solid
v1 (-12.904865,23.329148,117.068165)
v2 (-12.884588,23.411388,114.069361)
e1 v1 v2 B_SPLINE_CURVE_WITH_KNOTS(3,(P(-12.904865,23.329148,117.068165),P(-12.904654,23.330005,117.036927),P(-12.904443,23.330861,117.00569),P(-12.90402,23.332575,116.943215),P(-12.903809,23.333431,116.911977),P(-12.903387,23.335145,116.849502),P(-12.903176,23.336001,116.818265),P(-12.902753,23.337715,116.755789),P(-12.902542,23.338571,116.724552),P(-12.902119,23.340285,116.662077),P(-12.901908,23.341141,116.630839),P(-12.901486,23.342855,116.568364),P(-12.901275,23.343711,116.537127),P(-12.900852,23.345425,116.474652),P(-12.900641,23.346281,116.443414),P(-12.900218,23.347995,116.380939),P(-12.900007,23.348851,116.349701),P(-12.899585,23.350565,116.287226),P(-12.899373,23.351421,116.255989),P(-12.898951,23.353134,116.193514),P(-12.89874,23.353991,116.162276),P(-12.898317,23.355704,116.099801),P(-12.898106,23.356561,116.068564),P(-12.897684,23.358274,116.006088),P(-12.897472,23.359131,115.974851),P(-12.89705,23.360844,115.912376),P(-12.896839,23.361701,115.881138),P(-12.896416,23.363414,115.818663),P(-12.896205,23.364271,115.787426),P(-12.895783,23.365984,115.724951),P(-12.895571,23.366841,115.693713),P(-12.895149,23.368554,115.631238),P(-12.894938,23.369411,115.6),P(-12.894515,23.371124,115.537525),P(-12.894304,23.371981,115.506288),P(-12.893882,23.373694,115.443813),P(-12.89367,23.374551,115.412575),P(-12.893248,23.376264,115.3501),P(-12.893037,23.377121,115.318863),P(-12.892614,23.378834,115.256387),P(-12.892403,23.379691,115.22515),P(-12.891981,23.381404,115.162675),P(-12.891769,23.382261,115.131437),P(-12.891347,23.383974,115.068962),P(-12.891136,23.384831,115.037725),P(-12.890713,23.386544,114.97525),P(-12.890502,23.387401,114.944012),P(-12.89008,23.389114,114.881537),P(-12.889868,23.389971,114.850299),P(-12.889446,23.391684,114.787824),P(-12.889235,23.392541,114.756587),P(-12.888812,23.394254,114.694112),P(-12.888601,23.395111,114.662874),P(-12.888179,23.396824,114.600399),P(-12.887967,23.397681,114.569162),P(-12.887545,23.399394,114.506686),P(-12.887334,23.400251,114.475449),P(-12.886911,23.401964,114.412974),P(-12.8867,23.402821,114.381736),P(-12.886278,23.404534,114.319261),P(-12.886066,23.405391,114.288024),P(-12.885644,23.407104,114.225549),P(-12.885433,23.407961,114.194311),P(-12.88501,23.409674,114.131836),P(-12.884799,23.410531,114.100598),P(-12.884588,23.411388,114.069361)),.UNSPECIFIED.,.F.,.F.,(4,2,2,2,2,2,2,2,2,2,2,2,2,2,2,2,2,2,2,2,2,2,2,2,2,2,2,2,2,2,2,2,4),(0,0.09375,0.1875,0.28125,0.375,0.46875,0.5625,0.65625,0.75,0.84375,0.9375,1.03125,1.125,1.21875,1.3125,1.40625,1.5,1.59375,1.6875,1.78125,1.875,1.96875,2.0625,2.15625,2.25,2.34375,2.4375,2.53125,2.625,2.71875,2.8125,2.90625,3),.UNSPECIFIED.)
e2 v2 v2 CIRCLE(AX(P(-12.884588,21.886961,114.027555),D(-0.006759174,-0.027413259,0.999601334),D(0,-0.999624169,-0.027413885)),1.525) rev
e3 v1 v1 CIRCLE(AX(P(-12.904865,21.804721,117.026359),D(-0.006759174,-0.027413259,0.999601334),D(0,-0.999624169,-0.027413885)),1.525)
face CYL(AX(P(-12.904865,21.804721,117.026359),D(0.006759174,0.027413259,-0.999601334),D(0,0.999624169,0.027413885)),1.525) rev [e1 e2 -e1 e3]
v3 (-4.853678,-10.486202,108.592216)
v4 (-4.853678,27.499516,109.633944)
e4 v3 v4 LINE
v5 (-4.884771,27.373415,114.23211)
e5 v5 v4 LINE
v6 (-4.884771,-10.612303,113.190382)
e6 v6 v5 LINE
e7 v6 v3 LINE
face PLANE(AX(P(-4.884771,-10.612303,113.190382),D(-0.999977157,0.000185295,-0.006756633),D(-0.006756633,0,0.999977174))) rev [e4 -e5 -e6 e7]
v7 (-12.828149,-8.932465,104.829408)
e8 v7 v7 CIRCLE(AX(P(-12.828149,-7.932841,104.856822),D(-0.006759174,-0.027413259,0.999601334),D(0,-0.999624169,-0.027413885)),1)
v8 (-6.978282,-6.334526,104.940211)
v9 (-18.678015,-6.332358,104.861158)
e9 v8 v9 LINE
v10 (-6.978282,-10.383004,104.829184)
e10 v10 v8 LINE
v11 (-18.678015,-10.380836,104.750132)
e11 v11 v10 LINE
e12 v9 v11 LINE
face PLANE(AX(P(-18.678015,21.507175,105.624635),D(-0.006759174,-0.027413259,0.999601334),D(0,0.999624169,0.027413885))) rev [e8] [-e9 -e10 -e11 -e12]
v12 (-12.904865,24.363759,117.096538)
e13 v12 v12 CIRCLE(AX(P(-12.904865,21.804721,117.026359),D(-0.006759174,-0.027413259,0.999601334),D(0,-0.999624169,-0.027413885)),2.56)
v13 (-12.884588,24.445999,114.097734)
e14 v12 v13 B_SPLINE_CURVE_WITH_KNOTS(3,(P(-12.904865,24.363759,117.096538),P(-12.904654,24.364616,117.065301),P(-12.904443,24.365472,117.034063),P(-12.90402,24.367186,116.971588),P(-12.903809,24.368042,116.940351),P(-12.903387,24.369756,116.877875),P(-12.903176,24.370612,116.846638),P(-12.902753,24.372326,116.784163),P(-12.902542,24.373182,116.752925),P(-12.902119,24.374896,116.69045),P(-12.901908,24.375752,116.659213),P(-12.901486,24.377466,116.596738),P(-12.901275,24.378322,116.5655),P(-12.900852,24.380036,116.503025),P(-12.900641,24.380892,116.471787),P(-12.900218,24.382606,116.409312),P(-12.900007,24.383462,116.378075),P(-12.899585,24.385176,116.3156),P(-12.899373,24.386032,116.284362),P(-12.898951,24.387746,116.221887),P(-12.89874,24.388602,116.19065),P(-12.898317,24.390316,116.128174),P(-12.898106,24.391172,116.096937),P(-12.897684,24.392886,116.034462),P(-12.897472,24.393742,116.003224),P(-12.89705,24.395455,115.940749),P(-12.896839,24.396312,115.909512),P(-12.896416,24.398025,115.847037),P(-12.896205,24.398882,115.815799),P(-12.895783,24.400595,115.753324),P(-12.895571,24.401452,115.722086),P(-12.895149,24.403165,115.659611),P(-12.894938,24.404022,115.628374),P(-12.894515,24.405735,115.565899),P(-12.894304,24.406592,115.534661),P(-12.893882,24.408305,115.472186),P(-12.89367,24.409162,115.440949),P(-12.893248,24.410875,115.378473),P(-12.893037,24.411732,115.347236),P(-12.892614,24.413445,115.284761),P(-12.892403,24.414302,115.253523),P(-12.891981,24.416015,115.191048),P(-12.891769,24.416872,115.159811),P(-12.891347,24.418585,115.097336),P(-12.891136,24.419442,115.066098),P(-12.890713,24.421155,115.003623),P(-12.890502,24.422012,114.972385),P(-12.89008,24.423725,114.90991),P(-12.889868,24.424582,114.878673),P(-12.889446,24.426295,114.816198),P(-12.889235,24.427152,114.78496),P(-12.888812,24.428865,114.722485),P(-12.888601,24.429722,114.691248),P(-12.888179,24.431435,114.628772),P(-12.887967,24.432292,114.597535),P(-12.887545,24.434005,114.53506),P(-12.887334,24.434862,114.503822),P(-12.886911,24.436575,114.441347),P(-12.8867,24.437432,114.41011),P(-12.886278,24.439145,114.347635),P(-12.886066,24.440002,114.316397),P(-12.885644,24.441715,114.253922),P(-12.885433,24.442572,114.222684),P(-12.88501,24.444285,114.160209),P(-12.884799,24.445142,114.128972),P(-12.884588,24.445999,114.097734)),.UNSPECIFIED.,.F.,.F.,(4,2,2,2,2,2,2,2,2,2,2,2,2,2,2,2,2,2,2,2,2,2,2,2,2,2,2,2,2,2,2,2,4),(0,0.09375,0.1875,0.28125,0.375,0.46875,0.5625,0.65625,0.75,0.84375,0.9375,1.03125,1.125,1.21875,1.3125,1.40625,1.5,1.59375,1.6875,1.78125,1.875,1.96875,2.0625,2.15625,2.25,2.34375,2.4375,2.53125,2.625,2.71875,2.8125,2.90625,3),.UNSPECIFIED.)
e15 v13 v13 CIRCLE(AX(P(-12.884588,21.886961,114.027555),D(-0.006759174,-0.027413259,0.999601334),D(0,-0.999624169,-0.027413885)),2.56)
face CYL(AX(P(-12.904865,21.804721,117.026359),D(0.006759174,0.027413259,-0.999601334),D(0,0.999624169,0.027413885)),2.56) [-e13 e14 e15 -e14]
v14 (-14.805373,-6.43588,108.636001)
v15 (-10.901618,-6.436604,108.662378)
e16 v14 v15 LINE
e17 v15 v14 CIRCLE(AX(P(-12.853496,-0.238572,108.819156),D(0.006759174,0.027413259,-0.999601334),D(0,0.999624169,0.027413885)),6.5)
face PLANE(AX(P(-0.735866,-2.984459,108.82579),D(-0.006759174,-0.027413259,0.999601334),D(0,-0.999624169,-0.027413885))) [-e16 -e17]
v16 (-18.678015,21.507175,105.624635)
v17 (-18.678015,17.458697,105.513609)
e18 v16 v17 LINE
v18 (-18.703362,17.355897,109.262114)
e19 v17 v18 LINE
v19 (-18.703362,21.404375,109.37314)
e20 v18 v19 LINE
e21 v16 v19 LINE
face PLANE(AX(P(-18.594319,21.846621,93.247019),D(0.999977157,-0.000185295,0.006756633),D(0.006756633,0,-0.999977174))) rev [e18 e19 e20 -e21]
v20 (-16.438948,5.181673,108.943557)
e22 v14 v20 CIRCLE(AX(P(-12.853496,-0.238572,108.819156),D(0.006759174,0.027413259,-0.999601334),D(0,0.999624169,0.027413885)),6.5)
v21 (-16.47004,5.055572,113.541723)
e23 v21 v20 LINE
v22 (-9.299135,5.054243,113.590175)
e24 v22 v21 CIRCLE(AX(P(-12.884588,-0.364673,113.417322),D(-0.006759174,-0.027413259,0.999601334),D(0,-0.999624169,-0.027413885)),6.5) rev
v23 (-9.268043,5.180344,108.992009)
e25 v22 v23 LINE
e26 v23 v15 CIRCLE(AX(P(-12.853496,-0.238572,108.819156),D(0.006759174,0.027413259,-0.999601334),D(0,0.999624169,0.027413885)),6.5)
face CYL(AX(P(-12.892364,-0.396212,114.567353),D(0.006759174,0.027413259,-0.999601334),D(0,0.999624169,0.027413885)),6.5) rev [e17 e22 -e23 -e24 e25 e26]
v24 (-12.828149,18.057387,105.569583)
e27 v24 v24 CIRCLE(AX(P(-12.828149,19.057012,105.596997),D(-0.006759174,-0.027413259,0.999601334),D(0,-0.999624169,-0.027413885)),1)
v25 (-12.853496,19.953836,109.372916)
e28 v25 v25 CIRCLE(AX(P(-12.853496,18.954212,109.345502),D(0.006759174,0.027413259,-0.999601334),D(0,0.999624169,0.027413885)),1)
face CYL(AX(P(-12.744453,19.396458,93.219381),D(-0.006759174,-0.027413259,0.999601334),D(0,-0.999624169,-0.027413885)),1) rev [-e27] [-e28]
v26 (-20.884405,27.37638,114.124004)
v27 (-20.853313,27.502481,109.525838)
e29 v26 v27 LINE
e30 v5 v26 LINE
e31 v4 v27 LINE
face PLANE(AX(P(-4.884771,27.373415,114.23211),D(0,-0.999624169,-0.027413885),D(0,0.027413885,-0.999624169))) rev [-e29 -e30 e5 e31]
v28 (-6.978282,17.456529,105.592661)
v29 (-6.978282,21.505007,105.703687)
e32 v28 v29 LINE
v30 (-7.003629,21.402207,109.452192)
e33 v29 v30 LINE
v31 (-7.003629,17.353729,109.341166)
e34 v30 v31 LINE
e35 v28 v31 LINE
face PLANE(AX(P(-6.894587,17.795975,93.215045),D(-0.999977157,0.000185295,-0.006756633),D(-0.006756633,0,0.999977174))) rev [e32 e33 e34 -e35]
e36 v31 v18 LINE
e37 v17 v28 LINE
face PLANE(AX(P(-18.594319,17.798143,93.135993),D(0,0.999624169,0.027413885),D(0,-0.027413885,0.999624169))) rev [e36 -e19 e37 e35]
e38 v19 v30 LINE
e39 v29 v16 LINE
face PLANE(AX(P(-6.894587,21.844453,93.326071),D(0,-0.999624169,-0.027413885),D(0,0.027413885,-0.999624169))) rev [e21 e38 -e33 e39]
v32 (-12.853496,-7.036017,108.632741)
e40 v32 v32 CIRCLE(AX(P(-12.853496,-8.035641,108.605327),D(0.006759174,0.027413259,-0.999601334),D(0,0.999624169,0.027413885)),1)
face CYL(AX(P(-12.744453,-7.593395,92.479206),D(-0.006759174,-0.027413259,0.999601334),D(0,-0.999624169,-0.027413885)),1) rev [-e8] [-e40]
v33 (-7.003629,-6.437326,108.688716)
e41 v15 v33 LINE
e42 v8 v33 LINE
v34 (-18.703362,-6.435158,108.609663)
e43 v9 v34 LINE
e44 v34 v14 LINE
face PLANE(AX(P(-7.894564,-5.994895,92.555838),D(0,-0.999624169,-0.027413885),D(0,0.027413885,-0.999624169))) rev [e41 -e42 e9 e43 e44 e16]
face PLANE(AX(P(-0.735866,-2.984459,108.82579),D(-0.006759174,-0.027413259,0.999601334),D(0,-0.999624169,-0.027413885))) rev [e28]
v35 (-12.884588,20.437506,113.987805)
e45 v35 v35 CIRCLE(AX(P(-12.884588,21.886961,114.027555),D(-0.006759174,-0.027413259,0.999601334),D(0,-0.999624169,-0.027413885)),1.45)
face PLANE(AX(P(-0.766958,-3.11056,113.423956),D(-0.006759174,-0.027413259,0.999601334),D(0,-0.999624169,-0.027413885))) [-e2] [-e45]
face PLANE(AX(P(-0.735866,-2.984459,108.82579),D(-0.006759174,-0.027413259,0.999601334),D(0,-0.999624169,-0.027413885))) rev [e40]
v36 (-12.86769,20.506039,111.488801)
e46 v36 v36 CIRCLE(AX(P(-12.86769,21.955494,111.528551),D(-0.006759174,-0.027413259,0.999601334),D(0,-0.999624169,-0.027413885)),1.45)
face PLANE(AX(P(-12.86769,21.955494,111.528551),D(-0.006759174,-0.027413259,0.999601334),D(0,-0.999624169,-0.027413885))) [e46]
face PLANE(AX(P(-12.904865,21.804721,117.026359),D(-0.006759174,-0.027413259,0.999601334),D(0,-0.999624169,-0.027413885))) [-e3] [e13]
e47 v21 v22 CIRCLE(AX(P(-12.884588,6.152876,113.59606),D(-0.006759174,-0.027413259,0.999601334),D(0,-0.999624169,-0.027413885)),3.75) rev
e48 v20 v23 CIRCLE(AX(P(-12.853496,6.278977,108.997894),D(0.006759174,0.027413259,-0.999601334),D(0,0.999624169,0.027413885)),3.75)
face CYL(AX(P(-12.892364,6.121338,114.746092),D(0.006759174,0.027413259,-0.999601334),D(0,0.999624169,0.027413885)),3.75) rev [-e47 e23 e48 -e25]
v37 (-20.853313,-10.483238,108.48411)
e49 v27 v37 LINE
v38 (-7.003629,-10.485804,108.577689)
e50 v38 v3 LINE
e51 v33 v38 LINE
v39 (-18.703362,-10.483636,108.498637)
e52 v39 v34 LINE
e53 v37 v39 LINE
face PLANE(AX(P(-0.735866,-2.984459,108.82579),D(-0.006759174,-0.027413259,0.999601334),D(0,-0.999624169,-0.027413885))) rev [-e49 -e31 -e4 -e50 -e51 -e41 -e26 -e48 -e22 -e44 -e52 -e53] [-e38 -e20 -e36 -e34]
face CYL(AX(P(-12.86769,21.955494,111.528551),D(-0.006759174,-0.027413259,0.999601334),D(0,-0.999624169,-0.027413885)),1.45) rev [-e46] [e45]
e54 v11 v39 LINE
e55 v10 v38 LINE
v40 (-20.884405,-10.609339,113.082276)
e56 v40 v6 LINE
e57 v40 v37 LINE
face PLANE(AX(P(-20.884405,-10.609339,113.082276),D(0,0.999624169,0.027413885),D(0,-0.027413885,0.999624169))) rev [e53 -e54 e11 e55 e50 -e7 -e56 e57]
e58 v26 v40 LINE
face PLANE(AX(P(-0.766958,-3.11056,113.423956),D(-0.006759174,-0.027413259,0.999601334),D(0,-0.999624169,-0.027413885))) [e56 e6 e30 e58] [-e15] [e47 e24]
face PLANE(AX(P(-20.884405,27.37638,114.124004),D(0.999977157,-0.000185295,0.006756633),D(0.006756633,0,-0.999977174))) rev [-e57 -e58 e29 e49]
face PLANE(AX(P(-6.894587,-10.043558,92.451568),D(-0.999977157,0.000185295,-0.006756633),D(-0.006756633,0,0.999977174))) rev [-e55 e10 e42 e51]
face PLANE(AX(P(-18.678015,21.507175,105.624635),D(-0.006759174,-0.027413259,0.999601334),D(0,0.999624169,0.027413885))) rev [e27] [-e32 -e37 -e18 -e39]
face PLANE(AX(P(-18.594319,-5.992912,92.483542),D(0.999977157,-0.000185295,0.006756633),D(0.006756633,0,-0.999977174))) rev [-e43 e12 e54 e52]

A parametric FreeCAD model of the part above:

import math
import FreeCAD as App
import Part
import Sketcher


def add_polygon(sketch, points):
    """Adds a closed chain of lines whose ends are joined by coincident constraints."""
    first, n = sketch.GeometryCount, len(points)
    for a, b in zip(points, points[1:] + points[:1]):
        sketch.addGeometry(Part.LineSegment(App.Vector(*a, 0), App.Vector(*b, 0)), False)
    for i in range(n):
        sketch.addConstraint(Sketcher.Constraint("Coincident", first + i, 2, first + (i + 1) % n, 1))

doc = App.newDocument("Part")
body = doc.addObject("PartDesign::Body", "Body")

# Sketch on an angled plane
sketch1 = body.newObject("Sketcher::SketchObject", "Sketch")
sketch1.Placement = App.Placement(App.Vector(-0.735866, -2.984459, 108.82579), App.Rotation(App.Vector(0.999977157, -0.000185295, 0.006756633), App.Vector(0, 0.999624169, 0.027413885), App.Vector(-0.006759174, -0.027413259, 0.999601334), "ZXY"))
add_polygon(sketch1, [(-20.117907, 30.494673), (-20.117907, -7.505327), (-4.117907, -7.505327), (-4.117907, 30.494673)])  # lines 0-3
sketch1.addConstraint([
    Sketcher.Constraint("Vertical", 0),
    Sketcher.Constraint("Horizontal", 1),
    Sketcher.Constraint("Vertical", 2),
    Sketcher.Constraint("Horizontal", 3),
    Sketcher.Constraint("DistanceX", 1, 1, 1, 2, 16.0),
    Sketcher.Constraint("DistanceY", 0, 2, 0, 1, 38.0),
    Sketcher.Constraint("DistanceX", 0, 2, -1, 1, 20.117907),
    Sketcher.Constraint("DistanceY", 0, 2, -1, 1, 7.505327),
])
pad1 = body.newObject("PartDesign::Pad", "Pad")
pad1.Profile = sketch1
pad1.Length = 4.6

# Sketch on an angled plane
sketch2 = body.newObject("Sketcher::SketchObject", "Sketch001")
sketch2.Placement = App.Placement(App.Vector(-0.735866, -2.984459, 108.82579), App.Rotation(App.Vector(-0.999977157, 0.000185295, -0.006756633), App.Vector(0, 0.999624169, 0.027413885), App.Vector(0.006759174, 0.027413259, -0.999601334), "ZXY"))
sketch2.addGeometry([
    Part.ArcOfCircle(Part.Circle(App.Vector(12.117907, 9.264673, 0), App.Vector(0, 0, 1), 3.75), math.radians(-17.031765), math.radians(197.031765)),
    Part.ArcOfCircle(Part.Circle(App.Vector(12.117907, 2.744673, 0), App.Vector(0, 0, 1), 6.5), math.radians(123.47827), math.radians(416.52173)),
], False)
sketch2.addConstraint([
    Sketcher.Constraint("Coincident", 0, 1, 1, 2),
    Sketcher.Constraint("Coincident", 1, 1, 0, 2),
    Sketcher.Constraint("Horizontal", 0, 1, 1, 1),
    Sketcher.Constraint("Radius", 1, 6.5),
    Sketcher.Constraint("Radius", 0, 3.75),
    Sketcher.Constraint("DistanceY", 1, 3, 0, 3, 6.52),
    Sketcher.Constraint("DistanceX", -1, 1, 0, 1, 15.703441),
    Sketcher.Constraint("DistanceY", -1, 1, 0, 1, 8.166291),
])
pocket1 = body.newObject("PartDesign::Pocket", "Pocket")
pocket1.Profile = sketch2
pocket1.Type = "UpToFirst"

# Sketch on an angled plane
sketch3 = body.newObject("Sketcher::SketchObject", "Sketch002")
sketch3.Placement = App.Placement(App.Vector(-0.735866, -2.984459, 108.82579), App.Rotation(App.Vector(-0.999977157, 0.000185295, -0.006756633), App.Vector(0, 0.999624169, 0.027413885), App.Vector(0.006759174, 0.027413259, -0.999601334), "ZXY"))
add_polygon(sketch3, [(6.267907, 24.394673), (6.267907, 20.344673), (17.967907, 20.344673), (17.967907, 24.394673)])  # lines 0-3
sketch3.addGeometry(Part.Circle(App.Vector(12.117907, 21.944673, 0), App.Vector(0, 0, 1), 1), False)  # 4
add_polygon(sketch3, [(17.967907, -3.455327), (6.267907, -3.455327), (6.267907, -7.505327), (17.967907, -7.505327)])  # lines 5-8
sketch3.addGeometry(Part.Circle(App.Vector(12.117907, -5.055327, 0), App.Vector(0, 0, 1), 1), False)  # 9
sketch3.addConstraint([
    Sketcher.Constraint("Vertical", 0),
    Sketcher.Constraint("Horizontal", 1),
    Sketcher.Constraint("Vertical", 2),
    Sketcher.Constraint("Horizontal", 3),
    Sketcher.Constraint("Horizontal", 5),
    Sketcher.Constraint("Vertical", 6),
    Sketcher.Constraint("Horizontal", 7),
    Sketcher.Constraint("Vertical", 8),
    Sketcher.Constraint("Equal", 4, 9),
    Sketcher.Constraint("Vertical", 4, 3, 9, 3),
    Sketcher.Constraint("Vertical", 3, 2, 5, 2),
    Sketcher.Constraint("Vertical", 2, 2, 7, 2),
    Sketcher.Constraint("Equal", 2, 6),
    Sketcher.Constraint("Diameter", 4, 2.0),
    Sketcher.Constraint("DistanceX", 1, 1, 1, 2, 11.7),
    Sketcher.Constraint("DistanceY", 9, 3, 4, 3, 27.0),
    Sketcher.Constraint("DistanceY", 0, 2, 0, 1, 4.05),
    Sketcher.Constraint("DistanceY", 0, 2, 4, 3, 1.6),
    Sketcher.Constraint("DistanceY", 9, 3, 5, 2, 1.6),
    Sketcher.Constraint("DistanceX", 0, 2, 4, 3, 5.85),
    Sketcher.Constraint("DistanceX", -1, 1, 4, 3, 12.117907),
    Sketcher.Constraint("DistanceY", -1, 1, 4, 3, 21.944673),
])
pad2 = body.newObject("PartDesign::Pad", "Pad001")
pad2.Profile = sketch3
pad2.Length = 3.75

# Sketch on an angled plane
sketch4 = body.newObject("Sketcher::SketchObject", "Sketch003")
sketch4.Placement = App.Placement(App.Vector(-0.766958, -3.11056, 113.423956), App.Rotation(App.Vector(0.999977157, -0.000185295, 0.006756633), App.Vector(0, 0.999624169, 0.027413885), App.Vector(-0.006759174, -0.027413259, 0.999601334), "ZXY"))
sketch4.addGeometry([
    Part.Circle(App.Vector(-12.117907, 25.004673, 0), App.Vector(0, 0, 1), 2.56),
    Part.Circle(App.Vector(-12.117907, 25.004673, 0), App.Vector(0, 0, 1), 1.525),
], False)
sketch4.addConstraint([
    Sketcher.Constraint("Coincident", 1, 3, 0, 3),
    Sketcher.Constraint("Diameter", 0, 5.12),
    Sketcher.Constraint("Diameter", 1, 3.05),
    Sketcher.Constraint("DistanceX", 0, 3, -1, 1, 12.117907),
    Sketcher.Constraint("DistanceY", -1, 1, 0, 3, 25.004673),
])
pad3 = body.newObject("PartDesign::Pad", "Pad002")
pad3.Profile = sketch4
pad3.Length = 3

# Sketch on an angled plane
sketch5 = body.newObject("Sketcher::SketchObject", "Sketch004")
sketch5.Placement = App.Placement(App.Vector(-0.766958, -3.11056, 113.423956), App.Rotation(App.Vector(0.999977157, -0.000185295, 0.006756633), App.Vector(0, 0.999624169, 0.027413885), App.Vector(-0.006759174, -0.027413259, 0.999601334), "ZXY"))
sketch5.addGeometry(Part.Circle(App.Vector(-12.117907, 25.004673, 0), App.Vector(0, 0, 1), 1.45), False)
sketch5.addConstraint([
    Sketcher.Constraint("Diameter", 0, 2.9),
    Sketcher.Constraint("DistanceX", 0, 3, -1, 1, 12.117907),
    Sketcher.Constraint("DistanceY", -1, 1, 0, 3, 25.004673),
])
pocket2 = body.newObject("PartDesign::Pocket", "Pocket001")
pocket2.Profile = sketch5
pocket2.Length = 2.5

doc.recompute()
